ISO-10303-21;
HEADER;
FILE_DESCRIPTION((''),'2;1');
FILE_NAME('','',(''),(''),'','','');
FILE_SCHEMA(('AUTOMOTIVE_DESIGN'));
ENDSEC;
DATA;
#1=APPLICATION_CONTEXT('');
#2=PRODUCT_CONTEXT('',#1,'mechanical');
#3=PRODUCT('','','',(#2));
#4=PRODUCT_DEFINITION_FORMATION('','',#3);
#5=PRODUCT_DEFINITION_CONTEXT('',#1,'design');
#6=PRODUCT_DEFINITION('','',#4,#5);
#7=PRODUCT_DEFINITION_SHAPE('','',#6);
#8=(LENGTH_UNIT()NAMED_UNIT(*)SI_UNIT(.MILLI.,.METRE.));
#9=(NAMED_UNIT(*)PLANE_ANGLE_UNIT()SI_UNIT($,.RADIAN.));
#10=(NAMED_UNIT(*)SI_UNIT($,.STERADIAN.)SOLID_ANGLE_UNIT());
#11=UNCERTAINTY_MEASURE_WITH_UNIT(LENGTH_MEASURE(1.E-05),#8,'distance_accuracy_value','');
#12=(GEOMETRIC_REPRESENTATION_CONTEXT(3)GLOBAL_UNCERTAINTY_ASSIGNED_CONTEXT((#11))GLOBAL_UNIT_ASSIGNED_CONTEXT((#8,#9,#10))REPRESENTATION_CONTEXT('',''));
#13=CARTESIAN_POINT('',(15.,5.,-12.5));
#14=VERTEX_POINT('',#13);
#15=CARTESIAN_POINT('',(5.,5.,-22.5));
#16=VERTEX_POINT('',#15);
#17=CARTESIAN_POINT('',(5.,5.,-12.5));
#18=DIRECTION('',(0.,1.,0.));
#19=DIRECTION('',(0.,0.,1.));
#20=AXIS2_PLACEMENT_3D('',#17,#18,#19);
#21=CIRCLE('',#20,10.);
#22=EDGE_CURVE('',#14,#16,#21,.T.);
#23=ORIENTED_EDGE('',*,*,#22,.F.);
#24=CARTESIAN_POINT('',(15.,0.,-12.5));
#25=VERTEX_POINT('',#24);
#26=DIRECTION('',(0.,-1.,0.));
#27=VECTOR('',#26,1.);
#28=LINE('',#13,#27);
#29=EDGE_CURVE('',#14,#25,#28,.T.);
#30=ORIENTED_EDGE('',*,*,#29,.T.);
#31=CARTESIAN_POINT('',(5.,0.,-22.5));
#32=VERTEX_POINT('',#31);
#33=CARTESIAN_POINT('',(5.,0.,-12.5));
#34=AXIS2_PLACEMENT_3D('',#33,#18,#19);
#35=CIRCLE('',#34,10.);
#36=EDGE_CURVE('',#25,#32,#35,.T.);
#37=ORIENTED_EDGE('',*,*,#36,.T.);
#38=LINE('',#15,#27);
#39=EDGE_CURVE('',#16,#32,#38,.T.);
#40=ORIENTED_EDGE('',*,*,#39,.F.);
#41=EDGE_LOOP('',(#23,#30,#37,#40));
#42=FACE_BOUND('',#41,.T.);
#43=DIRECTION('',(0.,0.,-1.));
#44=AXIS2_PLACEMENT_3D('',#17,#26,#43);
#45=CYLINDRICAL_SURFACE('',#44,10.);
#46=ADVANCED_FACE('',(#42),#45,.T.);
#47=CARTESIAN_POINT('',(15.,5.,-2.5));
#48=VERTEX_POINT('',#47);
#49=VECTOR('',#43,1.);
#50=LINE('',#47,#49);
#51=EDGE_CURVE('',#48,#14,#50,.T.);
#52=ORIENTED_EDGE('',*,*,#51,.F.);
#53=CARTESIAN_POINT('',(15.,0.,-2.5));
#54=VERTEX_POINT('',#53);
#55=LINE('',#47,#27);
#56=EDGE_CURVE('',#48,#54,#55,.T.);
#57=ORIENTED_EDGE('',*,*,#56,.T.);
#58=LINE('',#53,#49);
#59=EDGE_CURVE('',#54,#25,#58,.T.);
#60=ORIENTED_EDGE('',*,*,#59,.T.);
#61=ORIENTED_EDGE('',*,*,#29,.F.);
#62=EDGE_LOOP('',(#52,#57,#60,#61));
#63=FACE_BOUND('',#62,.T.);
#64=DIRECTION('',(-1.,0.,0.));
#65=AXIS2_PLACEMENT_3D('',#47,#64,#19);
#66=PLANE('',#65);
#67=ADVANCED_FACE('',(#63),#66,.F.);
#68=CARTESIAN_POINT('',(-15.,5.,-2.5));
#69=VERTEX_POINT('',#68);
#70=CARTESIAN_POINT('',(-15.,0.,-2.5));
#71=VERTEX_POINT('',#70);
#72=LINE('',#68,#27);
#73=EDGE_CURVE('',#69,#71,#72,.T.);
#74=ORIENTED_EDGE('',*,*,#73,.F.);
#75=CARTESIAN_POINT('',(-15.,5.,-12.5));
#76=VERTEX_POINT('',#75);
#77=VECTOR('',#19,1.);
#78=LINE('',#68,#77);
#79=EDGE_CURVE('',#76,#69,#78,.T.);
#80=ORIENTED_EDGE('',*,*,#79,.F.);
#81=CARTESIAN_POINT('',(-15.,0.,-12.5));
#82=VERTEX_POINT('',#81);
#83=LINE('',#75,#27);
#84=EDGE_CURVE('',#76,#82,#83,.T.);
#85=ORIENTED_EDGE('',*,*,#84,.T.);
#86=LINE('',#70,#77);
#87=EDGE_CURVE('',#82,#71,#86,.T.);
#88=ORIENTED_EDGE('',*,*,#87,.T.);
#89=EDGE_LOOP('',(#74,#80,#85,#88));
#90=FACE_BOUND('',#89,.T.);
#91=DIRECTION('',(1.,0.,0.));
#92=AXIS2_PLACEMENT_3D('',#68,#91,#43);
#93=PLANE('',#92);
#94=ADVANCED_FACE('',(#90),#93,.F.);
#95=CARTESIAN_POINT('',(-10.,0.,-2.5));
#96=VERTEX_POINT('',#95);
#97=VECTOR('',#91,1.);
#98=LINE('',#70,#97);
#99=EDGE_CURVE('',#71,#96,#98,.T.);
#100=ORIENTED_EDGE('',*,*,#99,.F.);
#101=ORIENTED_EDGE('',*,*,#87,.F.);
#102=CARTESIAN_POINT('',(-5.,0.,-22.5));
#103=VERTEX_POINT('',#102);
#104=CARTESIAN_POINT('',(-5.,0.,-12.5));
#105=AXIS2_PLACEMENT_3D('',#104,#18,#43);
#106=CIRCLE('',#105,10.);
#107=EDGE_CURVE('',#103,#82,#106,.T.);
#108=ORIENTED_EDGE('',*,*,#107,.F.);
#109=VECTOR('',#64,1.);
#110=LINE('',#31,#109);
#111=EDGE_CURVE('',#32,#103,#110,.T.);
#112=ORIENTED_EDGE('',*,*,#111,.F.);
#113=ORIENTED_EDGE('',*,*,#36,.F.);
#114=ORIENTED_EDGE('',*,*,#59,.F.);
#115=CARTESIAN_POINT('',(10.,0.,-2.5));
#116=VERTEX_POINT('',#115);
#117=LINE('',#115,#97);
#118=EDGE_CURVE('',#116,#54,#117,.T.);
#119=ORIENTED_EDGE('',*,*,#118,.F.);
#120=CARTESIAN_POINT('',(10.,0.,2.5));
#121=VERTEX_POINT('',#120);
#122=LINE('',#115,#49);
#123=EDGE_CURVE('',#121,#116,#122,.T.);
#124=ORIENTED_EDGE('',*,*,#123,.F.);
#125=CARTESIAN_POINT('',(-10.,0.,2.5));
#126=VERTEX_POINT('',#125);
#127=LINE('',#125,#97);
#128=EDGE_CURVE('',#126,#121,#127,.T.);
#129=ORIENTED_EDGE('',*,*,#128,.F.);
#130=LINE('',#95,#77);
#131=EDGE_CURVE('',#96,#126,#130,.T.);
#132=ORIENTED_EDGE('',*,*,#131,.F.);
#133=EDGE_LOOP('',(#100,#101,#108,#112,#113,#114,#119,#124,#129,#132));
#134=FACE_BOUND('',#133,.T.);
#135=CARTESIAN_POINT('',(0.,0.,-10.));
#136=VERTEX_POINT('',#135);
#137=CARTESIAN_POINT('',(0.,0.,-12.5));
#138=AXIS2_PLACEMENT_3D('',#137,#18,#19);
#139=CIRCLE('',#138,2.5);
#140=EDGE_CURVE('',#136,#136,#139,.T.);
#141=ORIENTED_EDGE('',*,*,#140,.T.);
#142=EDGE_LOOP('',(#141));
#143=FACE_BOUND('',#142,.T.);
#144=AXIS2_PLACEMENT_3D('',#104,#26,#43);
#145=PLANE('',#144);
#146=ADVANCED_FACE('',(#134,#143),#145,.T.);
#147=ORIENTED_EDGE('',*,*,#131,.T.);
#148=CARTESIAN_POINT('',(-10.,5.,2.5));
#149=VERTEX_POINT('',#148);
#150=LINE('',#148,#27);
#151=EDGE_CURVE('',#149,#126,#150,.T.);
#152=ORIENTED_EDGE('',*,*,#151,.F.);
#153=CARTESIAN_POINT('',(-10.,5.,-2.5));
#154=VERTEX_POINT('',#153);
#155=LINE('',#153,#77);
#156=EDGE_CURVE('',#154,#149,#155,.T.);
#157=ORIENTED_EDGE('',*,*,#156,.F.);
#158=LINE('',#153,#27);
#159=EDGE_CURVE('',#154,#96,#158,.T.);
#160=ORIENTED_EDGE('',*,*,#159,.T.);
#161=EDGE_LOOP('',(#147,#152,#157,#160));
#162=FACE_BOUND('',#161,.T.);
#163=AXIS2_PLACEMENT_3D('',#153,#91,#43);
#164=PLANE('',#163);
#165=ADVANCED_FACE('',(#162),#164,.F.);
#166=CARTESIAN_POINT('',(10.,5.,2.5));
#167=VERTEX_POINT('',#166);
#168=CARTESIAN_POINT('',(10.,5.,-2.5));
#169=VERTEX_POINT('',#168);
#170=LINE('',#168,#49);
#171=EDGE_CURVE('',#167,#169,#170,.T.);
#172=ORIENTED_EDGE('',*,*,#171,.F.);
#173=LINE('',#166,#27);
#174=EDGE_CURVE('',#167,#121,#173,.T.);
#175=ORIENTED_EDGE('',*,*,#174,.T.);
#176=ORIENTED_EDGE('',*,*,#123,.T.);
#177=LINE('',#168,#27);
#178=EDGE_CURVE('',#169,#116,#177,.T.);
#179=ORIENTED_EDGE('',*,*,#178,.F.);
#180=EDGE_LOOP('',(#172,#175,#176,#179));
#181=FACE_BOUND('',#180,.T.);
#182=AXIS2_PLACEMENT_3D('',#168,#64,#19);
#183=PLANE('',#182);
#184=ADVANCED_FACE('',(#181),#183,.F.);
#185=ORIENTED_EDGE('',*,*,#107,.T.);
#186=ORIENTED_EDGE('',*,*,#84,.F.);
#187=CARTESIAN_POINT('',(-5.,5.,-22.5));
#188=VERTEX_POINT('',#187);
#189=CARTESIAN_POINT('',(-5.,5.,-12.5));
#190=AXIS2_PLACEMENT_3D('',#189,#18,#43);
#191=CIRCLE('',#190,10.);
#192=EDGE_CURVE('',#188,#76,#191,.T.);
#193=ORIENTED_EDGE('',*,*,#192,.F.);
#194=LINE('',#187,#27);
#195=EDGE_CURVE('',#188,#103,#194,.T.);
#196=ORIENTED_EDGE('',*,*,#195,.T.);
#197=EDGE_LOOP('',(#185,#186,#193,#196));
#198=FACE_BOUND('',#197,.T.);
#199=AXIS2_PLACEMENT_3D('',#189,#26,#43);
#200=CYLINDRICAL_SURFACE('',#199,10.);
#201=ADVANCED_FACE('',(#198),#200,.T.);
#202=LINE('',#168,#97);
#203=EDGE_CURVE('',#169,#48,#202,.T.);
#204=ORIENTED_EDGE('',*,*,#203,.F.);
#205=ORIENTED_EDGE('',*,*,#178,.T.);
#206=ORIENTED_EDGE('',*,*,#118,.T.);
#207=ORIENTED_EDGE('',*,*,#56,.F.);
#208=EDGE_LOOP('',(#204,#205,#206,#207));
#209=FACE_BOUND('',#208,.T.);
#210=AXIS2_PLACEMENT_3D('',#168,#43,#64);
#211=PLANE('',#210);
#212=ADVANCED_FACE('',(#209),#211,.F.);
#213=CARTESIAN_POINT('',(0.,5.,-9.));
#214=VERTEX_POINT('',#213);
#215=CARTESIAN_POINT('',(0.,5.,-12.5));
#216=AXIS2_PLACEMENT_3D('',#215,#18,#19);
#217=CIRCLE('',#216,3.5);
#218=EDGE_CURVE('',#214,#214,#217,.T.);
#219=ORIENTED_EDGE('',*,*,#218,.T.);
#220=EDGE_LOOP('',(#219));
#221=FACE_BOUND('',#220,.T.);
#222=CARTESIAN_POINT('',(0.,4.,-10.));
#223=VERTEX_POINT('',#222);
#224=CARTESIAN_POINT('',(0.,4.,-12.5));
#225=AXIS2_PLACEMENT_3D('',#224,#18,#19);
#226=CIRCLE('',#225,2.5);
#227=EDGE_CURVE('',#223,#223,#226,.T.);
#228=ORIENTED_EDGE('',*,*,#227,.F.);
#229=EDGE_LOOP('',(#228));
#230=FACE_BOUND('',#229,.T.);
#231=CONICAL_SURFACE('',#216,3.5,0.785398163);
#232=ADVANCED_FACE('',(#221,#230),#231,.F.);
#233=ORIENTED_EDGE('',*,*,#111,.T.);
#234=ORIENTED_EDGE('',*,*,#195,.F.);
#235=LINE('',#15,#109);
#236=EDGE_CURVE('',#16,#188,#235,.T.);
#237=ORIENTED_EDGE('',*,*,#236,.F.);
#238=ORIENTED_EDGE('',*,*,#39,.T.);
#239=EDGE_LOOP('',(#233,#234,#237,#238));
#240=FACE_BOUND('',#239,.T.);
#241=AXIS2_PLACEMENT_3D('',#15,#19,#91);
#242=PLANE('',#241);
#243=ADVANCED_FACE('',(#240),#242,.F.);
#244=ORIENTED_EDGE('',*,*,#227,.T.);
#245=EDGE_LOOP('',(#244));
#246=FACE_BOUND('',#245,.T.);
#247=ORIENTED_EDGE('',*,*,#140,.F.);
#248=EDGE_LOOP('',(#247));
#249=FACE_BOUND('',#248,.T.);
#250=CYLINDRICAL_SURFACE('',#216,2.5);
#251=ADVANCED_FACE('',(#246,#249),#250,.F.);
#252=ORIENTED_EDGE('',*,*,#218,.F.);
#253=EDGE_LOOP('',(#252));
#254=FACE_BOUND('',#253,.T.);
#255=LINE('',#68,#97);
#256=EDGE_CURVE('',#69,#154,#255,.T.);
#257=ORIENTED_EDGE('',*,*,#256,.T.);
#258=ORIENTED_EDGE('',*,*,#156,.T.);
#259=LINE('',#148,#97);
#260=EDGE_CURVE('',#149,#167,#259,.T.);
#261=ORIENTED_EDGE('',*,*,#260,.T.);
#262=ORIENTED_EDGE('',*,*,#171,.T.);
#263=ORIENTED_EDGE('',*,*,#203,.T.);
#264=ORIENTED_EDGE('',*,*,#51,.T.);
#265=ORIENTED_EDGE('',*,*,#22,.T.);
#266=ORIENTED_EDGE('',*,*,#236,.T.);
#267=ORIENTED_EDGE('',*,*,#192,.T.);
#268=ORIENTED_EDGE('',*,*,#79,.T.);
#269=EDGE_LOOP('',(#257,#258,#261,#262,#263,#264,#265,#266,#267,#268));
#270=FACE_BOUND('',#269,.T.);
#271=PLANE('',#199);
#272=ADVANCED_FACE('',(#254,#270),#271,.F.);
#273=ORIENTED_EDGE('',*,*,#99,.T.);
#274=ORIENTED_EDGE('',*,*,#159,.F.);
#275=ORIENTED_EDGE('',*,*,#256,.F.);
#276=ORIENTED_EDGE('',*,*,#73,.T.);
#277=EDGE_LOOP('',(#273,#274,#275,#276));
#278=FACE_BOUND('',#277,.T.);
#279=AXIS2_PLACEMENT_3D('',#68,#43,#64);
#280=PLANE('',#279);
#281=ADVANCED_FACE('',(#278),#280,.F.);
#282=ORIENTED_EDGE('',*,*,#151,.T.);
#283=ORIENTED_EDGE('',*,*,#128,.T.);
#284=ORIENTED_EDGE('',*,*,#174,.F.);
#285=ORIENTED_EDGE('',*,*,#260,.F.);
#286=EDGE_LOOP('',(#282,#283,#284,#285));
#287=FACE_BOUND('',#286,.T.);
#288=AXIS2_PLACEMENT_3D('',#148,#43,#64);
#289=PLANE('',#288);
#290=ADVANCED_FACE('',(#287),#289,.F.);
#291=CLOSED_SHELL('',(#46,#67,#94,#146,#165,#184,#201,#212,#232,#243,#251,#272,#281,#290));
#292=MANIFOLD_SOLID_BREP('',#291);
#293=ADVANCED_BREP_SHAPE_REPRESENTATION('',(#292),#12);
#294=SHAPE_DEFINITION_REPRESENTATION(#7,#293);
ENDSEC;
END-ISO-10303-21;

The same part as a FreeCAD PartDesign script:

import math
import FreeCAD as App
import Part
import Sketcher

V = App.Vector
Q = App.Units.Quantity

doc = App.newDocument("Part")
body = doc.addObject("PartDesign::Body", "Body")

sketch1 = doc.addObject("Sketcher::SketchObject", "Sketch")
body.addObject(sketch1)
sketch1.AttachmentSupport = (doc.XZ_Plane, [""])
sketch1.MapMode = "FlatFace"
sketch1.addGeometry(Part.LineSegment(V(-15, -2.5, 0), V(-10, -2.5, 0)), False)
sketch1.addGeometry(Part.LineSegment(V(-10, -2.5, 0), V(-10, 2.5, 0)), False)
sketch1.addGeometry(Part.LineSegment(V(-10, 2.5, 0), V(10, 2.5, 0)), False)
sketch1.addGeometry(Part.LineSegment(V(10, 2.5, 0), V(10, -2.5, 0)), False)
sketch1.addGeometry(Part.LineSegment(V(10, -2.5, 0), V(15, -2.5, 0)), False)
sketch1.addGeometry(Part.LineSegment(V(15, -2.5, 0), V(15, -12.5, 0)), False)
sketch1.addGeometry(Part.ArcOfCircle(Part.Circle(V(5, -12.5, 0), V(0, 0, 1), 10), math.radians(-90), math.radians(0)), False)
sketch1.addGeometry(Part.LineSegment(V(5, -22.5, 0), V(-5, -22.5, 0)), False)
sketch1.addGeometry(Part.ArcOfCircle(Part.Circle(V(-5, -12.5, 0), V(0, 0, 1), 10), math.radians(180), math.radians(270)), False)
sketch1.addGeometry(Part.LineSegment(V(-15, -12.5, 0), V(-15, -2.5, 0)), False)
sketch1.addConstraint(Sketcher.Constraint("Coincident", 0, 2, 1, 1))
sketch1.addConstraint(Sketcher.Constraint("Coincident", 1, 2, 2, 1))
sketch1.addConstraint(Sketcher.Constraint("Coincident", 2, 2, 3, 1))
sketch1.addConstraint(Sketcher.Constraint("Coincident", 3, 2, 4, 1))
sketch1.addConstraint(Sketcher.Constraint("Coincident", 4, 2, 5, 1))
sketch1.addConstraint(Sketcher.Constraint("Tangent", 5, 2, 6, 2))
sketch1.addConstraint(Sketcher.Constraint("Tangent", 6, 1, 7, 1))
sketch1.addConstraint(Sketcher.Constraint("Tangent", 7, 2, 8, 2))
sketch1.addConstraint(Sketcher.Constraint("Tangent", 8, 1, 9, 1))
sketch1.addConstraint(Sketcher.Constraint("Coincident", 9, 2, 0, 1))
sketch1.addConstraint(Sketcher.Constraint("Horizontal", 0))
sketch1.addConstraint(Sketcher.Constraint("Vertical", 1))
sketch1.addConstraint(Sketcher.Constraint("Horizontal", 2))
sketch1.addConstraint(Sketcher.Constraint("Vertical", 3))
sketch1.addConstraint(Sketcher.Constraint("Horizontal", 4))
sketch1.addConstraint(Sketcher.Constraint("Vertical", 5))
sketch1.addConstraint(Sketcher.Constraint("Horizontal", 7))
sketch1.addConstraint(Sketcher.Constraint("Vertical", 9))
sketch1.addConstraint(Sketcher.Constraint("Equal", 6, 8))
sketch1.addConstraint(Sketcher.Constraint("Symmetric", 0, 2, 2, 2, -1, 1))
sketch1.addConstraint(Sketcher.Constraint("Symmetric", 4, 2, 9, 2, -2))
sketch1.addConstraint(Sketcher.Constraint("Equal", 4, 1))
sketch1.addConstraint(Sketcher.Constraint("Equal", 7, 5))
sketch1.addConstraint(Sketcher.Constraint("Radius", 6, Q("10 mm")))
sketch1.addConstraint(Sketcher.Constraint("DistanceX", 0, 1, 0, 2, Q("5 mm")))
sketch1.addConstraint(Sketcher.Constraint("DistanceX", 2, 1, 2, 2, Q("20 mm")))
pad1 = doc.addObject("PartDesign::Pad", "Pad")
body.addObject(pad1)
pad1.Profile = sketch1
pad1.Length = 5
pad1.Reversed = True

sketch2 = doc.addObject("Sketcher::SketchObject", "Sketch001")
body.addObject(sketch2)
sketch2.AttachmentSupport = (doc.XZ_Plane, [""])
sketch2.MapMode = "FlatFace"
sketch2.AttachmentOffset = App.Placement(V(0, 0, -5), App.Rotation())
sketch2.addGeometry(Part.Circle(V(0, -12.5, 0), V(0, 0, 1), 2.5), False)
sketch2.addConstraint(Sketcher.Constraint("PointOnObject", 0, 3, -2))
sketch2.addConstraint(Sketcher.Constraint("Diameter", 0, Q("5 mm")))
sketch2.addConstraint(Sketcher.Constraint("DistanceY", 0, 3, -1, 1, Q("12.5 mm")))
doc.recompute()
hole = doc.addObject("PartDesign::Hole", "Hole")
body.addObject(hole)
hole.Profile = sketch2
hole.ThreadType = "None"
hole.Diameter = 5
hole.DepthType = "ThroughAll"
hole.HoleCutType = "Countersink"
hole.HoleCutDiameter = 7
hole.HoleCutCountersinkAngle = 90
hole.Reversed = True

doc.recompute()
